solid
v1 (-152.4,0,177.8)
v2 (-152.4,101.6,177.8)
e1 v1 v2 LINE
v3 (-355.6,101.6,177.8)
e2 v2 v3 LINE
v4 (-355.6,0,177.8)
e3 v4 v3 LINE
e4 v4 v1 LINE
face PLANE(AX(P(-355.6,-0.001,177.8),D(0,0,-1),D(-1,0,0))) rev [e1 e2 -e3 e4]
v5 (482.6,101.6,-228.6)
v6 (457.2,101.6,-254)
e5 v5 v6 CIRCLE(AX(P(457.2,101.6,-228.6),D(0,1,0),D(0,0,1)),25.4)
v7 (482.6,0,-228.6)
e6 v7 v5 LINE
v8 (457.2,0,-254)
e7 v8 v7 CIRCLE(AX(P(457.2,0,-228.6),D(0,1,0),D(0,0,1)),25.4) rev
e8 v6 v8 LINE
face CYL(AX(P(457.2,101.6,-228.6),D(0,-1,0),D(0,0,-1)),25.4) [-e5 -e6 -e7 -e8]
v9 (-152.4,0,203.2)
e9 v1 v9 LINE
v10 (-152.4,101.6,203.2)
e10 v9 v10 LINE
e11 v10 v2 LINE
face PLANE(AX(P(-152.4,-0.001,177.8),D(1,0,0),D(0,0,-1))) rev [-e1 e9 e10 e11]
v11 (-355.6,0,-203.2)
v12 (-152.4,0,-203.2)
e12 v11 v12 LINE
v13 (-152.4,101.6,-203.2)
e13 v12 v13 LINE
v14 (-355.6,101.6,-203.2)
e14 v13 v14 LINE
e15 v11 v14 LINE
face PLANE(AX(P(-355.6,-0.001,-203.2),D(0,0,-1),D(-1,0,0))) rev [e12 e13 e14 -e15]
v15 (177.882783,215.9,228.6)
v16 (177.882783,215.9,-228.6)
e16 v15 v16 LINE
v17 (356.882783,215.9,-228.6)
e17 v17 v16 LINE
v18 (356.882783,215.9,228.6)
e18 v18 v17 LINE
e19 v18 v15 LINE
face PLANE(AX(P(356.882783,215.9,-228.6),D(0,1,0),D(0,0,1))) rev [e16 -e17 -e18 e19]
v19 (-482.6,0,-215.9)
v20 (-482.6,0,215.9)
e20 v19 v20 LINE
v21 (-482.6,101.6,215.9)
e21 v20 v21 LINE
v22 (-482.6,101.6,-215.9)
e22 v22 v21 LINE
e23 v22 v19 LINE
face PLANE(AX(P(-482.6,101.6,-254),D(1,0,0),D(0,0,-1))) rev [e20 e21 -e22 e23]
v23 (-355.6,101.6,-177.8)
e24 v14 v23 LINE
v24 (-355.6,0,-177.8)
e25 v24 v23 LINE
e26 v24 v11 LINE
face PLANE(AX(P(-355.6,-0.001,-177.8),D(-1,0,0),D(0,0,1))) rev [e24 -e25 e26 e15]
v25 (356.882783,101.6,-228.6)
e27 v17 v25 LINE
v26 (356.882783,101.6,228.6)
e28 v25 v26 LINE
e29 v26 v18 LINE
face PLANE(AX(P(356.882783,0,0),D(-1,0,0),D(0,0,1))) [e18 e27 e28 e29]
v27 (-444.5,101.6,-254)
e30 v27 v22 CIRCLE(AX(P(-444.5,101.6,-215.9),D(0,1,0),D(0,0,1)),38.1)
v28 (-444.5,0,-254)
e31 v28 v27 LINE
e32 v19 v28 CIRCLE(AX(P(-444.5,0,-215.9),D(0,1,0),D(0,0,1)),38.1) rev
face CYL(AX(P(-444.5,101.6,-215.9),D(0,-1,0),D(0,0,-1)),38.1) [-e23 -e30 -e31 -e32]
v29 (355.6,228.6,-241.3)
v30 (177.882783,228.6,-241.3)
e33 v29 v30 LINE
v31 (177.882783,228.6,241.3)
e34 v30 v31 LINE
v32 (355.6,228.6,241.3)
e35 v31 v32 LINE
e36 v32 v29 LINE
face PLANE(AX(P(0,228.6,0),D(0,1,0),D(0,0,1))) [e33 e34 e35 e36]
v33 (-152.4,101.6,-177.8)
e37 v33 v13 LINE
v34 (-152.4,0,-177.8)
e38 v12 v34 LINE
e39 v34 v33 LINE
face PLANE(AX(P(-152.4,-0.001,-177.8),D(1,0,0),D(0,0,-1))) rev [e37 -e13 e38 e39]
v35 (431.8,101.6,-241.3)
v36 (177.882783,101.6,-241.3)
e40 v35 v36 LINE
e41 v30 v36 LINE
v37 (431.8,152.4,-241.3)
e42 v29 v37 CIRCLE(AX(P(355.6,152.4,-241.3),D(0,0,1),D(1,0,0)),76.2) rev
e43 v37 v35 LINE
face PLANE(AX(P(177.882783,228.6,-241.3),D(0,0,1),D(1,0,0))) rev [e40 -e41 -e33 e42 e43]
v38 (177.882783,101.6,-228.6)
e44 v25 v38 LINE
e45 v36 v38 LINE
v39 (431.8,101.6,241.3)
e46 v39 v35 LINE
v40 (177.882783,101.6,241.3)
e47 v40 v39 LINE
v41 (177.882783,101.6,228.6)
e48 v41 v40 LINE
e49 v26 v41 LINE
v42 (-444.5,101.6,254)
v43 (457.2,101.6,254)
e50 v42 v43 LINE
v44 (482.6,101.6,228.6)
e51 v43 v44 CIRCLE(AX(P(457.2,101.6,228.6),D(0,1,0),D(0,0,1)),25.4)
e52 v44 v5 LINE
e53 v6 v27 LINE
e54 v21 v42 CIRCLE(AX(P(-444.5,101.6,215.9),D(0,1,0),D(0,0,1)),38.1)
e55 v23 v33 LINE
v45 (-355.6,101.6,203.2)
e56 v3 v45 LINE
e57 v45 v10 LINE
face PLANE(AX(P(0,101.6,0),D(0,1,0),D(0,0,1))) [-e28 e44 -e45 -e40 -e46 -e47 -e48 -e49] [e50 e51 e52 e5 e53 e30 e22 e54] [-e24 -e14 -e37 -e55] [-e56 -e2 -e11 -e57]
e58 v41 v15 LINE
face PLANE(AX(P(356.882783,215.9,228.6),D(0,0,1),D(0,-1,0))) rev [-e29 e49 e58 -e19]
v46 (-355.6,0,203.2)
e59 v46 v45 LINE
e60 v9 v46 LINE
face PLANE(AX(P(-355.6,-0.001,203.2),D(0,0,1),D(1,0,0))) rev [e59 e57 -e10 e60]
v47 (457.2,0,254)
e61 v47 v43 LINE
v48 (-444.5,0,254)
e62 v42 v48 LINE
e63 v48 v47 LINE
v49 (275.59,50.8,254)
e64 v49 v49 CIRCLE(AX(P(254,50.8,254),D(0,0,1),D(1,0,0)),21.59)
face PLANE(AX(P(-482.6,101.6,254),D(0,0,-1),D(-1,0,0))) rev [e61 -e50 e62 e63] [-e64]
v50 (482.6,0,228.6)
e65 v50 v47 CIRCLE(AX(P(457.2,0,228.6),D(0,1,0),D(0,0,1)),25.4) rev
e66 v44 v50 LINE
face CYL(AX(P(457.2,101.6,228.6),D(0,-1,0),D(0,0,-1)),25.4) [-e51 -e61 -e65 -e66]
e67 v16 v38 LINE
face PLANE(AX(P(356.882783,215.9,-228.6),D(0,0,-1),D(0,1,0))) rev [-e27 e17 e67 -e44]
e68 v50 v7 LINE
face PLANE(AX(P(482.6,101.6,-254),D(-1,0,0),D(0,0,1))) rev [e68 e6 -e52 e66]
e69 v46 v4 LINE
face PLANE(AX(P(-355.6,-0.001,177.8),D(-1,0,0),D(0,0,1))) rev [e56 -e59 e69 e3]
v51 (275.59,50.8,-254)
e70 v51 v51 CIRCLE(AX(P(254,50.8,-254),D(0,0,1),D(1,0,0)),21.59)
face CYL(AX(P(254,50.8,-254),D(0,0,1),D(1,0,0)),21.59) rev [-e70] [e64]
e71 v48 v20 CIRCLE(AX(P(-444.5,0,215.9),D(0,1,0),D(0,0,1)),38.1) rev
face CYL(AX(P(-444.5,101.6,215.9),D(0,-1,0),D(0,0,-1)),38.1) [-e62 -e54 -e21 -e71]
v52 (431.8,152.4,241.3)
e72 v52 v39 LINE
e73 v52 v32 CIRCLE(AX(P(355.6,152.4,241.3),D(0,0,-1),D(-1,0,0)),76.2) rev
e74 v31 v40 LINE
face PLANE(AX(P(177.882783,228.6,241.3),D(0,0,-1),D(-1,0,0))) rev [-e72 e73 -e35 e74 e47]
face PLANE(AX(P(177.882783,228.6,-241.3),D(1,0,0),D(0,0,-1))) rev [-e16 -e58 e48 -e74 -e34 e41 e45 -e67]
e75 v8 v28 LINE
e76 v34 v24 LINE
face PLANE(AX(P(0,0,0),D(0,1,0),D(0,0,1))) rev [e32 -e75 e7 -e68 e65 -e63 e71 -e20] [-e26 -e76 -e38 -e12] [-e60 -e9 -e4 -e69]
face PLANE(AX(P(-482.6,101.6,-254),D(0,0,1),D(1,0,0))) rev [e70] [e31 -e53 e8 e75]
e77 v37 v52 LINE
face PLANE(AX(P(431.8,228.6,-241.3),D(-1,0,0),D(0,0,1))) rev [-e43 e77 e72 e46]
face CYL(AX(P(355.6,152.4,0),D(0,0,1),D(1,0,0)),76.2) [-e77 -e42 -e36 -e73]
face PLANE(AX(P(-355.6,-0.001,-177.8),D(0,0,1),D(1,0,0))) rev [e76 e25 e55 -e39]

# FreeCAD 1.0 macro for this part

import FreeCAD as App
import Part
import Sketcher
Q = App.Units.Quantity


def edges_at(feature, points):
    """Names of the edges that pass closest to the given points."""
    edges = feature.Shape.Edges
    near = lambda p: min(range(len(edges)), key=lambda i: edges[i].distToShape(Part.Vertex(*p))[0])
    return sorted({f"Edge{near(p) + 1}" for p in points})


def add_polygon(sketch, points):
    """Adds a closed chain of lines whose ends are joined by coincident constraints."""
    first, n = sketch.GeometryCount, len(points)
    for a, b in zip(points, points[1:] + points[:1]):
        sketch.addGeometry(Part.LineSegment(App.Vector(*a, 0), App.Vector(*b, 0)), False)
    for i in range(n):
        sketch.addConstraint(Sketcher.Constraint("Coincident", first + i, 2, first + (i + 1) % n, 1))

doc = App.newDocument("Part")
body = doc.addObject("PartDesign::Body", "Body")

sketch1 = body.newObject("Sketcher::SketchObject", "Sketch")
sketch1.AttachmentSupport = (doc.getObject("XZ_Plane"), [""])
sketch1.MapMode = "FlatFace"
add_polygon(sketch1, [(-483, -254), (-483, 254), (483, 254), (483, -254)])
sketch1.addConstraint([
    Sketcher.Constraint("Vertical", 0),
    Sketcher.Constraint("Horizontal", 1),
    Sketcher.Constraint("Vertical", 2),
    Sketcher.Constraint("Horizontal", 3),
    Sketcher.Constraint("Symmetric", 0, 2, 2, 2, -1, 1),
    Sketcher.Constraint("DistanceX", 1, 1, 1, 2, Q("38 in")),
    Sketcher.Constraint("DistanceY", 0, 1, 0, 2, Q("20 in")),
])
pad1 = body.newObject("PartDesign::Pad", "Pad")
pad1.Profile = sketch1
pad1.Length = Q("4 in")
pad1.Reversed = True

sketch2 = body.newObject("Sketcher::SketchObject", "Sketch001")
sketch2.AttachmentSupport = (doc.getObject("XY_Plane"), [""])
sketch2.MapMode = "FlatFace"
sketch2.AttachmentOffset = App.Placement(App.Vector(0, 0, 10 * 25.4), App.Rotation())
sketch2.addGeometry(Part.Circle(App.Vector(254, 51, 0), App.Vector(0, 0, 1), 22), False)
sketch2.addConstraint([
    Sketcher.Constraint("Diameter", 0, Q("1.7 in")),
    Sketcher.Constraint("DistanceX", -1, 1, 0, 3, Q("10 in")),
    Sketcher.Constraint("DistanceY", -1, 1, 0, 3, Q("2 in")),
])
pocket1 = body.newObject("PartDesign::Pocket", "Pocket")
pocket1.Profile = sketch2
pocket1.Type = "ThroughAll"
doc.recompute()

fillet = body.newObject("PartDesign::Fillet", "Fillet")
fillet.Base = (pocket1, edges_at(pocket1, [(-482.6, 50.8, -254), (-482.6, 50.8, 254)]))
fillet.Radius = Q("1.5 in")
doc.recompute()

fillet2 = body.newObject("PartDesign::Fillet", "Fillet001")
fillet2.Base = (fillet, edges_at(fillet, [(482.6, 50.8, -254), (482.6, 50.8, 254)]))
fillet2.Radius = Q("1 in")

sketch3 = body.newObject("Sketcher::SketchObject", "Sketch002")
sketch3.AttachmentSupport = (doc.getObject("XZ_Plane"), [""])
sketch3.MapMode = "FlatFace"
sketch3.AttachmentOffset = App.Placement(App.Vector(0, 0, -4 * 25.4), App.Rotation())
add_polygon(sketch3, [(-356, 178), (-356, 203), (-152, 203), (-152, 178)])
sketch3.addConstraint([
    Sketcher.Constraint("Vertical", 0),
    Sketcher.Constraint("Horizontal", 1),
    Sketcher.Constraint("Vertical", 2),
    Sketcher.Constraint("Horizontal", 3),
    Sketcher.Constraint("DistanceX", 1, 1, 1, 2, Q("8 in")),
    Sketcher.Constraint("DistanceY", 0, 1, 0, 2, Q("1 in")),
    Sketcher.Constraint("DistanceX", 0, 2, -1, 1, Q("14 in")),
    Sketcher.Constraint("DistanceY", -1, 1, 0, 2, Q("8 in")),
])
pocket2 = body.newObject("PartDesign::Pocket", "Pocket001")
pocket2.Profile = sketch3
pocket2.Type = "UpToFirst"
pocket2.Reversed = True

sketch4 = body.newObject("Sketcher::SketchObject", "Sketch003")
sketch4.AttachmentSupport = (doc.getObject("XZ_Plane"), [""])
sketch4.MapMode = "FlatFace"
sketch4.AttachmentOffset = App.Placement(App.Vector(0, 0, -4 * 25.4), App.Rotation())
add_polygon(sketch4, [(-356, -203), (-356, -178), (-152, -178), (-152, -203)])
sketch4.addConstraint([
    Sketcher.Constraint("Vertical", 0),
    Sketcher.Constraint("Horizontal", 1),
    Sketcher.Constraint("Vertical", 2),
    Sketcher.Constraint("Horizontal", 3),
    Sketcher.Constraint("DistanceX", 1, 1, 1, 2, Q("8 in")),
    Sketcher.Constraint("DistanceY", 0, 1, 0, 2, Q("1 in")),
    Sketcher.Constraint("DistanceX", 0, 2, -1, 1, Q("14 in")),
    Sketcher.Constraint("DistanceY", 0, 2, -1, 1, Q("7 in")),
])
pocket3 = body.newObject("PartDesign::Pocket", "Pocket002")
pocket3.Profile = sketch4
pocket3.Type = "UpToFirst"
pocket3.Reversed = True

sketch5 = body.newObject("Sketcher::SketchObject", "Sketch004")
sketch5.AttachmentSupport = (doc.getObject("XZ_Plane"), [""])
sketch5.MapMode = "FlatFace"
sketch5.AttachmentOffset = App.Placement(App.Vector(0, 0, -4 * 25.4), App.Rotation())
add_polygon(sketch5, [(178, -241), (178, 241), (432, 241), (432, -241)])
sketch5.addConstraint([
    Sketcher.Constraint("Vertical", 0),
    Sketcher.Constraint("Horizontal", 1),
    Sketcher.Constraint("Vertical", 2),
    Sketcher.Constraint("Horizontal", 3),
    Sketcher.Constraint("DistanceY", 0, 1, 0, 2, Q("19 in")),
    Sketcher.Constraint("DistanceX", -1, 1, 1, 2, Q("17 in")),
    Sketcher.Constraint("DistanceY", -1, 1, 0, 2, Q("9.5 in")),
    Sketcher.Constraint("DistanceX", 1, 1, 1, 2, Q("253.917217 mm")),
])
pad2 = body.newObject("PartDesign::Pad", "Pad001")
pad2.Profile = sketch5
pad2.Length = Q("5 in")
pad2.Reversed = True
doc.recompute()

fillet3 = body.newObject("PartDesign::Fillet", "Fillet002")
fillet3.Base = (pad2, edges_at(pad2, [(431.8, 228.6, 0)]))
fillet3.Radius = Q("3 in")

sketch6 = body.newObject("Sketcher::SketchObject", "Sketch005")
sketch6.AttachmentSupport = (doc.getObject("YZ_Plane"), [""])
sketch6.MapMode = "FlatFace"
sketch6.AttachmentOffset = App.Placement(App.Vector(0, 0, 177.882783), App.Rotation())
add_polygon(sketch6, [(216, -229), (102, -229), (102, 229), (216, 229)])
sketch6.addConstraint([
    Sketcher.Constraint("Horizontal", 0),
    Sketcher.Constraint("Vertical", 1),
    Sketcher.Constraint("Horizontal", 2),
    Sketcher.Constraint("Vertical", 3),
    Sketcher.Constraint("DistanceY", 1, 1, 1, 2, Q("18 in")),
    Sketcher.Constraint("DistanceX", 0, 2, 0, 1, Q("4.5 in")),
    Sketcher.Constraint("DistanceX", -1, 1, 0, 2, Q("4 in")),
    Sketcher.Constraint("DistanceY", 0, 2, -1, 1, Q("9 in")),
])
pocket4 = body.newObject("PartDesign::Pocket", "Pocket003")
pocket4.Profile = sketch6
pocket4.Length = 179
pocket4.Reversed = True

doc.recompute()
